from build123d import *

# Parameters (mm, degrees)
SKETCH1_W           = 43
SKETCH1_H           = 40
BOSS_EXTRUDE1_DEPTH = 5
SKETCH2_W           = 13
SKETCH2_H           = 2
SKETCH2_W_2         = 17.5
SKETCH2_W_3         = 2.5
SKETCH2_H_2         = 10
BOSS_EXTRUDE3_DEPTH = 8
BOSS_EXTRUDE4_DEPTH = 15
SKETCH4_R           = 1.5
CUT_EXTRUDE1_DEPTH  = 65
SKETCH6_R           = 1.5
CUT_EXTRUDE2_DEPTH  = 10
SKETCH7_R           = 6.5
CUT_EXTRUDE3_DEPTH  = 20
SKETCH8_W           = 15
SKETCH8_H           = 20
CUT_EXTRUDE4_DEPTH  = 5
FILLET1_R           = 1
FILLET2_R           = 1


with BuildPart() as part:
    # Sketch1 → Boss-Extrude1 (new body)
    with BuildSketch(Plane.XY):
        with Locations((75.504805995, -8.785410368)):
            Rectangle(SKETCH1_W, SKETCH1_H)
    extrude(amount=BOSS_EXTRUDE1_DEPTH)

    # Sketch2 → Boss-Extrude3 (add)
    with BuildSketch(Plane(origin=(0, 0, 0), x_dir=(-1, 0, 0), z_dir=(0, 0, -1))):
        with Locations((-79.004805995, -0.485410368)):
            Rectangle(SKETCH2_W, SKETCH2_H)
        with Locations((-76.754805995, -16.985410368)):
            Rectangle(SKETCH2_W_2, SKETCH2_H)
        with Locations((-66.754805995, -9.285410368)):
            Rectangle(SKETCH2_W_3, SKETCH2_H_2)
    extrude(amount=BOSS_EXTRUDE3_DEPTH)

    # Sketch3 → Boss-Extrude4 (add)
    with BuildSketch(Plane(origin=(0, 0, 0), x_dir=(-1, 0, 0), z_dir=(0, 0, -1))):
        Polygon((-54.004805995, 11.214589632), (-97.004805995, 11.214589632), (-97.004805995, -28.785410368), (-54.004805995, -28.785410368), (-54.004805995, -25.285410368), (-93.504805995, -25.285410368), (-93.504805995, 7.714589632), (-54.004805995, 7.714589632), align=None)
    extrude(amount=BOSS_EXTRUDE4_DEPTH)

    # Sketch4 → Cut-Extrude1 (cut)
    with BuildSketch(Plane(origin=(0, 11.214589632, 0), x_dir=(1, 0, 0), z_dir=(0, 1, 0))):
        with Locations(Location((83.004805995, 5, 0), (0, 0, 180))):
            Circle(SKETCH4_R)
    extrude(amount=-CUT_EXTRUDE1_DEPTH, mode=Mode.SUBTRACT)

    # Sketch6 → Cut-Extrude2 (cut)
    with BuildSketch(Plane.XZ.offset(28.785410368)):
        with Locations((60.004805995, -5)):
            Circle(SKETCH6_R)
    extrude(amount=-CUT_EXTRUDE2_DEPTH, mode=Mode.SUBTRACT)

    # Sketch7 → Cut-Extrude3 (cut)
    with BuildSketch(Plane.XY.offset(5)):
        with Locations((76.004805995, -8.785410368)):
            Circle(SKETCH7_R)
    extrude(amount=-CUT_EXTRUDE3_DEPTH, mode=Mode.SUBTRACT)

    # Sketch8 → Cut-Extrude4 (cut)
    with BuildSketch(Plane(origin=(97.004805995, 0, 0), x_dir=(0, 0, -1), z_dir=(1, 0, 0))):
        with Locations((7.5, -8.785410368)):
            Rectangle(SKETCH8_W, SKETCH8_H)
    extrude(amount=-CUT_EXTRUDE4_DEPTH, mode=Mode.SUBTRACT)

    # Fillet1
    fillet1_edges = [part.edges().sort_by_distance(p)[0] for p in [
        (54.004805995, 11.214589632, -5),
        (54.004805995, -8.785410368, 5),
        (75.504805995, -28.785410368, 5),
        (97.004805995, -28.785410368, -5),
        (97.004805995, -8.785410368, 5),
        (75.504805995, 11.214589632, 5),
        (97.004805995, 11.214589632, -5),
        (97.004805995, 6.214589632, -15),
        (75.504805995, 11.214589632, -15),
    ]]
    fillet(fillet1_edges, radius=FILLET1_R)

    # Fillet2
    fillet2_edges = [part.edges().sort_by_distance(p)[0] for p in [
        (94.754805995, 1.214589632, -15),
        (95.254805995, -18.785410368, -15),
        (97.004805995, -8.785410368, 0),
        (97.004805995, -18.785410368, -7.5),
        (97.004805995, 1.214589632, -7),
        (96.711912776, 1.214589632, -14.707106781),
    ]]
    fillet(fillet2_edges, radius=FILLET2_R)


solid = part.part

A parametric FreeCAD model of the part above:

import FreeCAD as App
import Part
import Sketcher

V = App.Vector


def edges_at(feature, points):
    """Names of the edges that pass closest to the given points."""
    edges = feature.Shape.Edges
    near = lambda p: min(range(len(edges)), key=lambda i: edges[i].distToShape(Part.Vertex(*p))[0])
    return sorted({f"Edge{near(p) + 1}" for p in points})

doc = App.newDocument("Part")
body = doc.addObject("PartDesign::Body", "Body")

# Sketch on XY plane
sketch1 = doc.addObject("Sketcher::SketchObject", "Sketch")
body.addObject(sketch1)
sketch1.AttachmentSupport = (doc.XY_Plane, [""])
sketch1.MapMode = "FlatFace"
sketch1.addGeometry(Part.LineSegment(V(54, 11, 0), V(54, -29, 0)), False)
sketch1.addGeometry(Part.LineSegment(V(54, -29, 0), V(97, -29, 0)), False)
sketch1.addGeometry(Part.LineSegment(V(97, -29, 0), V(97, 11, 0)), False)
sketch1.addGeometry(Part.LineSegment(V(97, 11, 0), V(54, 11, 0)), False)
sketch1.addConstraint(Sketcher.Constraint("Coincident", 0, 2, 1, 1))
sketch1.addConstraint(Sketcher.Constraint("Coincident", 1, 2, 2, 1))
sketch1.addConstraint(Sketcher.Constraint("Coincident", 2, 2, 3, 1))
sketch1.addConstraint(Sketcher.Constraint("Coincident", 3, 2, 0, 1))
sketch1.addConstraint(Sketcher.Constraint("Vertical", 0))
sketch1.addConstraint(Sketcher.Constraint("Horizontal", 1))
sketch1.addConstraint(Sketcher.Constraint("Vertical", 2))
sketch1.addConstraint(Sketcher.Constraint("Horizontal", 3))
sketch1.addConstraint(Sketcher.Constraint("DistanceX", 1, 1, 1, 2, 43.0))
sketch1.addConstraint(Sketcher.Constraint("DistanceY", 0, 2, 0, 1, 40.0))
sketch1.addConstraint(Sketcher.Constraint("DistanceY", 0, 2, -1, 1, 28.78541))
sketch1.addConstraint(Sketcher.Constraint("DistanceX", -1, 1, 0, 2, 54.004806))
pad1 = doc.addObject("PartDesign::Pad", "Pad")
body.addObject(pad1)
pad1.Profile = sketch1
pad1.Length = 5

# Sketch on XY plane
sketch2 = doc.addObject("Sketcher::SketchObject", "Sketch001")
body.addObject(sketch2)
sketch2.AttachmentSupport = (doc.XY_Plane, [""])
sketch2.MapMode = "FlatFace"
sketch2.addGeometry(Part.LineSegment(V(85.5, 0.5, 0), V(85.5, -1.5, 0)), False)
sketch2.addGeometry(Part.LineSegment(V(85.5, -1.5, 0), V(72.5, -1.5, 0)), False)
sketch2.addGeometry(Part.LineSegment(V(72.5, -1.5, 0), V(72.5, 0.5, 0)), False)
sketch2.addGeometry(Part.LineSegment(V(72.5, 0.5, 0), V(85.5, 0.5, 0)), False)
sketch2.addGeometry(Part.LineSegment(V(85.5, -16, 0), V(85.5, -18, 0)), False)
sketch2.addGeometry(Part.LineSegment(V(85.5, -18, 0), V(68, -18, 0)), False)
sketch2.addGeometry(Part.LineSegment(V(68, -18, 0), V(68, -16, 0)), False)
sketch2.addGeometry(Part.LineSegment(V(68, -16, 0), V(85.5, -16, 0)), False)
sketch2.addGeometry(Part.LineSegment(V(68, -4.3, 0), V(68, -14.3, 0)), False)
sketch2.addGeometry(Part.LineSegment(V(68, -14.3, 0), V(65.5, -14.3, 0)), False)
sketch2.addGeometry(Part.LineSegment(V(65.5, -14.3, 0), V(65.5, -4.3, 0)), False)
sketch2.addGeometry(Part.LineSegment(V(65.5, -4.3, 0), V(68, -4.3, 0)), False)
sketch2.addConstraint(Sketcher.Constraint("Coincident", 0, 2, 1, 1))
sketch2.addConstraint(Sketcher.Constraint("Coincident", 1, 2, 2, 1))
sketch2.addConstraint(Sketcher.Constraint("Coincident", 2, 2, 3, 1))
sketch2.addConstraint(Sketcher.Constraint("Coincident", 3, 2, 0, 1))
sketch2.addConstraint(Sketcher.Constraint("Coincident", 4, 2, 5, 1))
sketch2.addConstraint(Sketcher.Constraint("Coincident", 5, 2, 6, 1))
sketch2.addConstraint(Sketcher.Constraint("Coincident", 6, 2, 7, 1))
sketch2.addConstraint(Sketcher.Constraint("Coincident", 7, 2, 4, 1))
sketch2.addConstraint(Sketcher.Constraint("Coincident", 8, 2, 9, 1))
sketch2.addConstraint(Sketcher.Constraint("Coincident", 9, 2, 10, 1))
sketch2.addConstraint(Sketcher.Constraint("Coincident", 10, 2, 11, 1))
sketch2.addConstraint(Sketcher.Constraint("Coincident", 11, 2, 8, 1))
sketch2.addConstraint(Sketcher.Constraint("Vertical", 0))
sketch2.addConstraint(Sketcher.Constraint("Horizontal", 1))
sketch2.addConstraint(Sketcher.Constraint("Vertical", 2))
sketch2.addConstraint(Sketcher.Constraint("Horizontal", 3))
sketch2.addConstraint(Sketcher.Constraint("Vertical", 4))
sketch2.addConstraint(Sketcher.Constraint("Horizontal", 5))
sketch2.addConstraint(Sketcher.Constraint("Vertical", 6))
sketch2.addConstraint(Sketcher.Constraint("Horizontal", 7))
sketch2.addConstraint(Sketcher.Constraint("Vertical", 8))
sketch2.addConstraint(Sketcher.Constraint("Horizontal", 9))
sketch2.addConstraint(Sketcher.Constraint("Vertical", 10))
sketch2.addConstraint(Sketcher.Constraint("Horizontal", 11))
sketch2.addConstraint(Sketcher.Constraint("Vertical", 3, 2, 4, 2))
sketch2.addConstraint(Sketcher.Constraint("Vertical", 6, 2, 8, 2))
sketch2.addConstraint(Sketcher.Constraint("Equal", 2, 4))
sketch2.addConstraint(Sketcher.Constraint("DistanceX", 1, 2, 1, 1, 13.0))
sketch2.addConstraint(Sketcher.Constraint("DistanceY", 0, 2, 0, 1, 2.0))
sketch2.addConstraint(Sketcher.Constraint("DistanceY", 8, 2, 8, 1, 10.0))
sketch2.addConstraint(Sketcher.Constraint("DistanceX", 5, 2, 5, 1, 17.5))
sketch2.addConstraint(Sketcher.Constraint("DistanceX", 9, 2, 9, 1, 2.5))
sketch2.addConstraint(Sketcher.Constraint("DistanceY", 4, 2, 0, 2, 16.5))
sketch2.addConstraint(Sketcher.Constraint("DistanceY", 6, 2, 8, 2, 1.7))
sketch2.addConstraint(Sketcher.Constraint("DistanceY", 0, 2, -1, 1, 1.48541))
sketch2.addConstraint(Sketcher.Constraint("DistanceX", -1, 1, 0, 2, 85.504806))
pad2 = doc.addObject("PartDesign::Pad", "Pad001")
body.addObject(pad2)
pad2.Profile = sketch2
pad2.Length = 8
pad2.Reversed = True

# Sketch on XY plane
sketch3 = doc.addObject("Sketcher::SketchObject", "Sketch002")
body.addObject(sketch3)
sketch3.AttachmentSupport = (doc.XY_Plane, [""])
sketch3.MapMode = "FlatFace"
sketch3.addGeometry(Part.LineSegment(V(54, 11.2, 0), V(97, 11.2, 0)), False)
sketch3.addGeometry(Part.LineSegment(V(97, 11.2, 0), V(97, -28.8, 0)), False)
sketch3.addGeometry(Part.LineSegment(V(97, -28.8, 0), V(54, -28.8, 0)), False)
sketch3.addGeometry(Part.LineSegment(V(54, -28.8, 0), V(54, -25.3, 0)), False)
sketch3.addGeometry(Part.LineSegment(V(54, -25.3, 0), V(93.5, -25.3, 0)), False)
sketch3.addGeometry(Part.LineSegment(V(93.5, -25.3, 0), V(93.5, 7.7, 0)), False)
sketch3.addGeometry(Part.LineSegment(V(93.5, 7.7, 0), V(54, 7.7, 0)), False)
sketch3.addGeometry(Part.LineSegment(V(54, 7.7, 0), V(54, 11.2, 0)), False)
sketch3.addConstraint(Sketcher.Constraint("Coincident", 0, 2, 1, 1))
sketch3.addConstraint(Sketcher.Constraint("Coincident", 1, 2, 2, 1))
sketch3.addConstraint(Sketcher.Constraint("Coincident", 2, 2, 3, 1))
sketch3.addConstraint(Sketcher.Constraint("Coincident", 3, 2, 4, 1))
sketch3.addConstraint(Sketcher.Constraint("Coincident", 4, 2, 5, 1))
sketch3.addConstraint(Sketcher.Constraint("Coincident", 5, 2, 6, 1))
sketch3.addConstraint(Sketcher.Constraint("Coincident", 6, 2, 7, 1))
sketch3.addConstraint(Sketcher.Constraint("Coincident", 7, 2, 0, 1))
sketch3.addConstraint(Sketcher.Constraint("Horizontal", 0))
sketch3.addConstraint(Sketcher.Constraint("Vertical", 1))
sketch3.addConstraint(Sketcher.Constraint("Horizontal", 2))
sketch3.addConstraint(Sketcher.Constraint("Vertical", 3))
sketch3.addConstraint(Sketcher.Constraint("Horizontal", 4))
sketch3.addConstraint(Sketcher.Constraint("Vertical", 5))
sketch3.addConstraint(Sketcher.Constraint("Horizontal", 6))
sketch3.addConstraint(Sketcher.Constraint("Vertical", 7))
sketch3.addConstraint(Sketcher.Constraint("Vertical", 3, 2, 6, 2))
sketch3.addConstraint(Sketcher.Constraint("Equal", 3, 7))
sketch3.addConstraint(Sketcher.Constraint("DistanceX", 0, 1, 0, 2, 43.0))
sketch3.addConstraint(Sketcher.Constraint("DistanceY", 1, 2, 1, 1, 40.0))
sketch3.addConstraint(Sketcher.Constraint("DistanceY", 5, 1, 5, 2, 33.0))
sketch3.addConstraint(Sketcher.Constraint("DistanceX", 4, 1, 4, 2, 39.5))
sketch3.addConstraint(Sketcher.Constraint("DistanceY", -1, 1, 0, 2, 11.21459))
sketch3.addConstraint(Sketcher.Constraint("DistanceX", -1, 1, 0, 2, 97.004806))
pad3 = doc.addObject("PartDesign::Pad", "Pad002")
body.addObject(pad3)
pad3.Profile = sketch3
pad3.Length = 15
pad3.Reversed = True

# Sketch on XZ plane
sketch4 = doc.addObject("Sketcher::SketchObject", "Sketch003")
body.addObject(sketch4)
sketch4.AttachmentSupport = (doc.XZ_Plane, [""])
sketch4.MapMode = "FlatFace"
sketch4.AttachmentOffset = App.Placement(V(0, 0, -11.21459), App.Rotation())
sketch4.addGeometry(Part.Circle(V(83, -5, 0), V(0, 0, 1), 1.5), False)
sketch4.addConstraint(Sketcher.Constraint("Diameter", 0, 3.0))
sketch4.addConstraint(Sketcher.Constraint("DistanceY", 0, 3, -1, 1, 5.0))
sketch4.addConstraint(Sketcher.Constraint("DistanceX", -1, 1, 0, 3, 83.004806))
pocket1 = doc.addObject("PartDesign::Pocket", "Pocket")
body.addObject(pocket1)
pocket1.Profile = sketch4
pocket1.Length = 65
pocket1.Reversed = True

# Sketch on XZ plane
sketch5 = doc.addObject("Sketcher::SketchObject", "Sketch004")
body.addObject(sketch5)
sketch5.AttachmentSupport = (doc.XZ_Plane, [""])
sketch5.MapMode = "FlatFace"
sketch5.AttachmentOffset = App.Placement(V(0, 0, 28.78541), App.Rotation())
sketch5.addGeometry(Part.Circle(V(60, -5, 0), V(0, 0, 1), 1.5), False)
sketch5.addConstraint(Sketcher.Constraint("Diameter", 0, 3.0))
sketch5.addConstraint(Sketcher.Constraint("DistanceY", 0, 3, -1, 1, 5.0))
sketch5.addConstraint(Sketcher.Constraint("DistanceX", -1, 1, 0, 3, 60.004806))
pocket2 = doc.addObject("PartDesign::Pocket", "Pocket001")
body.addObject(pocket2)
pocket2.Profile = sketch5
pocket2.Length = 10

# Sketch on XY plane
sketch6 = doc.addObject("Sketcher::SketchObject", "Sketch005")
body.addObject(sketch6)
sketch6.AttachmentSupport = (doc.XY_Plane, [""])
sketch6.MapMode = "FlatFace"
sketch6.AttachmentOffset = App.Placement(V(0, 0, 5), App.Rotation())
sketch6.addGeometry(Part.Circle(V(76, -9, 0), V(0, 0, 1), 6), False)
sketch6.addConstraint(Sketcher.Constraint("Diameter", 0, 13.0))
sketch6.addConstraint(Sketcher.Constraint("DistanceY", 0, 3, -1, 1, 8.78541))
sketch6.addConstraint(Sketcher.Constraint("DistanceX", -1, 1, 0, 3, 76.004806))
pocket3 = doc.addObject("PartDesign::Pocket", "Pocket002")
body.addObject(pocket3)
pocket3.Profile = sketch6
pocket3.Length = 20

# Sketch on YZ plane
sketch7 = doc.addObject("Sketcher::SketchObject", "Sketch006")
body.addObject(sketch7)
sketch7.AttachmentSupport = (doc.YZ_Plane, [""])
sketch7.MapMode = "FlatFace"
sketch7.AttachmentOffset = App.Placement(V(0, 0, 97.004806), App.Rotation())
sketch7.addGeometry(Part.LineSegment(V(1, 0, 0), V(-19, 0, 0)), False)
sketch7.addGeometry(Part.LineSegment(V(-19, 0, 0), V(-19, -15, 0)), False)
sketch7.addGeometry(Part.LineSegment(V(-19, -15, 0), V(1, -15, 0)), False)
sketch7.addGeometry(Part.LineSegment(V(1, -15, 0), V(1, 0, 0)), False)
sketch7.addConstraint(Sketcher.Constraint("Coincident", 0, 2, 1, 1))
sketch7.addConstraint(Sketcher.Constraint("Coincident", 1, 2, 2, 1))
sketch7.addConstraint(Sketcher.Constraint("Coincident", 2, 2, 3, 1))
sketch7.addConstraint(Sketcher.Constraint("Coincident", 3, 2, 0, 1))
sketch7.addConstraint(Sketcher.Constraint("Horizontal", 0))
sketch7.addConstraint(Sketcher.Constraint("Vertical", 1))
sketch7.addConstraint(Sketcher.Constraint("Horizontal", 2))
sketch7.addConstraint(Sketcher.Constraint("Vertical", 3))
sketch7.addConstraint(Sketcher.Constraint("PointOnObject", 0, 2, -1))
sketch7.addConstraint(Sketcher.Constraint("DistanceX", 0, 2, 0, 1, 20.0))
sketch7.addConstraint(Sketcher.Constraint("DistanceY", 1, 2, 1, 1, 15.0))
sketch7.addConstraint(Sketcher.Constraint("DistanceX", 0, 2, -1, 1, 18.78541))
pocket4 = doc.addObject("PartDesign::Pocket", "Pocket003")
body.addObject(pocket4)
pocket4.Profile = sketch7
pocket4.Length = 5
doc.recompute()

fillet = doc.addObject("PartDesign::Fillet", "Fillet")
body.addObject(fillet)
fillet.Base = (pocket4, edges_at(pocket4, [
    (54.005, 11.215, -5),
    (54.005, -8.785, 5),
    (75.505, -28.785, 5),
    (97.005, -28.785, -5),
    (97.005, -8.785, 5),
    (75.505, 11.215, 5),
    (97.005, 11.215, -5),
    (97.005, 6.215, -15),
    (75.505, 11.215, -15),
]))
fillet.Radius = 1
doc.recompute()

fillet2 = doc.addObject("PartDesign::Fillet", "Fillet001")
body.addObject(fillet2)
fillet2.Base = (fillet, edges_at(fillet, [
    (94.755, 1.215, -15),
    (95.255, -18.785, -15),
    (97.005, -8.785, 0),
    (97.005, -18.785, -7.5),
    (97.005, 1.215, -7),
    (96.712, 1.215, -14.707),
]))
fillet2.Radius = 1

doc.recompute()
